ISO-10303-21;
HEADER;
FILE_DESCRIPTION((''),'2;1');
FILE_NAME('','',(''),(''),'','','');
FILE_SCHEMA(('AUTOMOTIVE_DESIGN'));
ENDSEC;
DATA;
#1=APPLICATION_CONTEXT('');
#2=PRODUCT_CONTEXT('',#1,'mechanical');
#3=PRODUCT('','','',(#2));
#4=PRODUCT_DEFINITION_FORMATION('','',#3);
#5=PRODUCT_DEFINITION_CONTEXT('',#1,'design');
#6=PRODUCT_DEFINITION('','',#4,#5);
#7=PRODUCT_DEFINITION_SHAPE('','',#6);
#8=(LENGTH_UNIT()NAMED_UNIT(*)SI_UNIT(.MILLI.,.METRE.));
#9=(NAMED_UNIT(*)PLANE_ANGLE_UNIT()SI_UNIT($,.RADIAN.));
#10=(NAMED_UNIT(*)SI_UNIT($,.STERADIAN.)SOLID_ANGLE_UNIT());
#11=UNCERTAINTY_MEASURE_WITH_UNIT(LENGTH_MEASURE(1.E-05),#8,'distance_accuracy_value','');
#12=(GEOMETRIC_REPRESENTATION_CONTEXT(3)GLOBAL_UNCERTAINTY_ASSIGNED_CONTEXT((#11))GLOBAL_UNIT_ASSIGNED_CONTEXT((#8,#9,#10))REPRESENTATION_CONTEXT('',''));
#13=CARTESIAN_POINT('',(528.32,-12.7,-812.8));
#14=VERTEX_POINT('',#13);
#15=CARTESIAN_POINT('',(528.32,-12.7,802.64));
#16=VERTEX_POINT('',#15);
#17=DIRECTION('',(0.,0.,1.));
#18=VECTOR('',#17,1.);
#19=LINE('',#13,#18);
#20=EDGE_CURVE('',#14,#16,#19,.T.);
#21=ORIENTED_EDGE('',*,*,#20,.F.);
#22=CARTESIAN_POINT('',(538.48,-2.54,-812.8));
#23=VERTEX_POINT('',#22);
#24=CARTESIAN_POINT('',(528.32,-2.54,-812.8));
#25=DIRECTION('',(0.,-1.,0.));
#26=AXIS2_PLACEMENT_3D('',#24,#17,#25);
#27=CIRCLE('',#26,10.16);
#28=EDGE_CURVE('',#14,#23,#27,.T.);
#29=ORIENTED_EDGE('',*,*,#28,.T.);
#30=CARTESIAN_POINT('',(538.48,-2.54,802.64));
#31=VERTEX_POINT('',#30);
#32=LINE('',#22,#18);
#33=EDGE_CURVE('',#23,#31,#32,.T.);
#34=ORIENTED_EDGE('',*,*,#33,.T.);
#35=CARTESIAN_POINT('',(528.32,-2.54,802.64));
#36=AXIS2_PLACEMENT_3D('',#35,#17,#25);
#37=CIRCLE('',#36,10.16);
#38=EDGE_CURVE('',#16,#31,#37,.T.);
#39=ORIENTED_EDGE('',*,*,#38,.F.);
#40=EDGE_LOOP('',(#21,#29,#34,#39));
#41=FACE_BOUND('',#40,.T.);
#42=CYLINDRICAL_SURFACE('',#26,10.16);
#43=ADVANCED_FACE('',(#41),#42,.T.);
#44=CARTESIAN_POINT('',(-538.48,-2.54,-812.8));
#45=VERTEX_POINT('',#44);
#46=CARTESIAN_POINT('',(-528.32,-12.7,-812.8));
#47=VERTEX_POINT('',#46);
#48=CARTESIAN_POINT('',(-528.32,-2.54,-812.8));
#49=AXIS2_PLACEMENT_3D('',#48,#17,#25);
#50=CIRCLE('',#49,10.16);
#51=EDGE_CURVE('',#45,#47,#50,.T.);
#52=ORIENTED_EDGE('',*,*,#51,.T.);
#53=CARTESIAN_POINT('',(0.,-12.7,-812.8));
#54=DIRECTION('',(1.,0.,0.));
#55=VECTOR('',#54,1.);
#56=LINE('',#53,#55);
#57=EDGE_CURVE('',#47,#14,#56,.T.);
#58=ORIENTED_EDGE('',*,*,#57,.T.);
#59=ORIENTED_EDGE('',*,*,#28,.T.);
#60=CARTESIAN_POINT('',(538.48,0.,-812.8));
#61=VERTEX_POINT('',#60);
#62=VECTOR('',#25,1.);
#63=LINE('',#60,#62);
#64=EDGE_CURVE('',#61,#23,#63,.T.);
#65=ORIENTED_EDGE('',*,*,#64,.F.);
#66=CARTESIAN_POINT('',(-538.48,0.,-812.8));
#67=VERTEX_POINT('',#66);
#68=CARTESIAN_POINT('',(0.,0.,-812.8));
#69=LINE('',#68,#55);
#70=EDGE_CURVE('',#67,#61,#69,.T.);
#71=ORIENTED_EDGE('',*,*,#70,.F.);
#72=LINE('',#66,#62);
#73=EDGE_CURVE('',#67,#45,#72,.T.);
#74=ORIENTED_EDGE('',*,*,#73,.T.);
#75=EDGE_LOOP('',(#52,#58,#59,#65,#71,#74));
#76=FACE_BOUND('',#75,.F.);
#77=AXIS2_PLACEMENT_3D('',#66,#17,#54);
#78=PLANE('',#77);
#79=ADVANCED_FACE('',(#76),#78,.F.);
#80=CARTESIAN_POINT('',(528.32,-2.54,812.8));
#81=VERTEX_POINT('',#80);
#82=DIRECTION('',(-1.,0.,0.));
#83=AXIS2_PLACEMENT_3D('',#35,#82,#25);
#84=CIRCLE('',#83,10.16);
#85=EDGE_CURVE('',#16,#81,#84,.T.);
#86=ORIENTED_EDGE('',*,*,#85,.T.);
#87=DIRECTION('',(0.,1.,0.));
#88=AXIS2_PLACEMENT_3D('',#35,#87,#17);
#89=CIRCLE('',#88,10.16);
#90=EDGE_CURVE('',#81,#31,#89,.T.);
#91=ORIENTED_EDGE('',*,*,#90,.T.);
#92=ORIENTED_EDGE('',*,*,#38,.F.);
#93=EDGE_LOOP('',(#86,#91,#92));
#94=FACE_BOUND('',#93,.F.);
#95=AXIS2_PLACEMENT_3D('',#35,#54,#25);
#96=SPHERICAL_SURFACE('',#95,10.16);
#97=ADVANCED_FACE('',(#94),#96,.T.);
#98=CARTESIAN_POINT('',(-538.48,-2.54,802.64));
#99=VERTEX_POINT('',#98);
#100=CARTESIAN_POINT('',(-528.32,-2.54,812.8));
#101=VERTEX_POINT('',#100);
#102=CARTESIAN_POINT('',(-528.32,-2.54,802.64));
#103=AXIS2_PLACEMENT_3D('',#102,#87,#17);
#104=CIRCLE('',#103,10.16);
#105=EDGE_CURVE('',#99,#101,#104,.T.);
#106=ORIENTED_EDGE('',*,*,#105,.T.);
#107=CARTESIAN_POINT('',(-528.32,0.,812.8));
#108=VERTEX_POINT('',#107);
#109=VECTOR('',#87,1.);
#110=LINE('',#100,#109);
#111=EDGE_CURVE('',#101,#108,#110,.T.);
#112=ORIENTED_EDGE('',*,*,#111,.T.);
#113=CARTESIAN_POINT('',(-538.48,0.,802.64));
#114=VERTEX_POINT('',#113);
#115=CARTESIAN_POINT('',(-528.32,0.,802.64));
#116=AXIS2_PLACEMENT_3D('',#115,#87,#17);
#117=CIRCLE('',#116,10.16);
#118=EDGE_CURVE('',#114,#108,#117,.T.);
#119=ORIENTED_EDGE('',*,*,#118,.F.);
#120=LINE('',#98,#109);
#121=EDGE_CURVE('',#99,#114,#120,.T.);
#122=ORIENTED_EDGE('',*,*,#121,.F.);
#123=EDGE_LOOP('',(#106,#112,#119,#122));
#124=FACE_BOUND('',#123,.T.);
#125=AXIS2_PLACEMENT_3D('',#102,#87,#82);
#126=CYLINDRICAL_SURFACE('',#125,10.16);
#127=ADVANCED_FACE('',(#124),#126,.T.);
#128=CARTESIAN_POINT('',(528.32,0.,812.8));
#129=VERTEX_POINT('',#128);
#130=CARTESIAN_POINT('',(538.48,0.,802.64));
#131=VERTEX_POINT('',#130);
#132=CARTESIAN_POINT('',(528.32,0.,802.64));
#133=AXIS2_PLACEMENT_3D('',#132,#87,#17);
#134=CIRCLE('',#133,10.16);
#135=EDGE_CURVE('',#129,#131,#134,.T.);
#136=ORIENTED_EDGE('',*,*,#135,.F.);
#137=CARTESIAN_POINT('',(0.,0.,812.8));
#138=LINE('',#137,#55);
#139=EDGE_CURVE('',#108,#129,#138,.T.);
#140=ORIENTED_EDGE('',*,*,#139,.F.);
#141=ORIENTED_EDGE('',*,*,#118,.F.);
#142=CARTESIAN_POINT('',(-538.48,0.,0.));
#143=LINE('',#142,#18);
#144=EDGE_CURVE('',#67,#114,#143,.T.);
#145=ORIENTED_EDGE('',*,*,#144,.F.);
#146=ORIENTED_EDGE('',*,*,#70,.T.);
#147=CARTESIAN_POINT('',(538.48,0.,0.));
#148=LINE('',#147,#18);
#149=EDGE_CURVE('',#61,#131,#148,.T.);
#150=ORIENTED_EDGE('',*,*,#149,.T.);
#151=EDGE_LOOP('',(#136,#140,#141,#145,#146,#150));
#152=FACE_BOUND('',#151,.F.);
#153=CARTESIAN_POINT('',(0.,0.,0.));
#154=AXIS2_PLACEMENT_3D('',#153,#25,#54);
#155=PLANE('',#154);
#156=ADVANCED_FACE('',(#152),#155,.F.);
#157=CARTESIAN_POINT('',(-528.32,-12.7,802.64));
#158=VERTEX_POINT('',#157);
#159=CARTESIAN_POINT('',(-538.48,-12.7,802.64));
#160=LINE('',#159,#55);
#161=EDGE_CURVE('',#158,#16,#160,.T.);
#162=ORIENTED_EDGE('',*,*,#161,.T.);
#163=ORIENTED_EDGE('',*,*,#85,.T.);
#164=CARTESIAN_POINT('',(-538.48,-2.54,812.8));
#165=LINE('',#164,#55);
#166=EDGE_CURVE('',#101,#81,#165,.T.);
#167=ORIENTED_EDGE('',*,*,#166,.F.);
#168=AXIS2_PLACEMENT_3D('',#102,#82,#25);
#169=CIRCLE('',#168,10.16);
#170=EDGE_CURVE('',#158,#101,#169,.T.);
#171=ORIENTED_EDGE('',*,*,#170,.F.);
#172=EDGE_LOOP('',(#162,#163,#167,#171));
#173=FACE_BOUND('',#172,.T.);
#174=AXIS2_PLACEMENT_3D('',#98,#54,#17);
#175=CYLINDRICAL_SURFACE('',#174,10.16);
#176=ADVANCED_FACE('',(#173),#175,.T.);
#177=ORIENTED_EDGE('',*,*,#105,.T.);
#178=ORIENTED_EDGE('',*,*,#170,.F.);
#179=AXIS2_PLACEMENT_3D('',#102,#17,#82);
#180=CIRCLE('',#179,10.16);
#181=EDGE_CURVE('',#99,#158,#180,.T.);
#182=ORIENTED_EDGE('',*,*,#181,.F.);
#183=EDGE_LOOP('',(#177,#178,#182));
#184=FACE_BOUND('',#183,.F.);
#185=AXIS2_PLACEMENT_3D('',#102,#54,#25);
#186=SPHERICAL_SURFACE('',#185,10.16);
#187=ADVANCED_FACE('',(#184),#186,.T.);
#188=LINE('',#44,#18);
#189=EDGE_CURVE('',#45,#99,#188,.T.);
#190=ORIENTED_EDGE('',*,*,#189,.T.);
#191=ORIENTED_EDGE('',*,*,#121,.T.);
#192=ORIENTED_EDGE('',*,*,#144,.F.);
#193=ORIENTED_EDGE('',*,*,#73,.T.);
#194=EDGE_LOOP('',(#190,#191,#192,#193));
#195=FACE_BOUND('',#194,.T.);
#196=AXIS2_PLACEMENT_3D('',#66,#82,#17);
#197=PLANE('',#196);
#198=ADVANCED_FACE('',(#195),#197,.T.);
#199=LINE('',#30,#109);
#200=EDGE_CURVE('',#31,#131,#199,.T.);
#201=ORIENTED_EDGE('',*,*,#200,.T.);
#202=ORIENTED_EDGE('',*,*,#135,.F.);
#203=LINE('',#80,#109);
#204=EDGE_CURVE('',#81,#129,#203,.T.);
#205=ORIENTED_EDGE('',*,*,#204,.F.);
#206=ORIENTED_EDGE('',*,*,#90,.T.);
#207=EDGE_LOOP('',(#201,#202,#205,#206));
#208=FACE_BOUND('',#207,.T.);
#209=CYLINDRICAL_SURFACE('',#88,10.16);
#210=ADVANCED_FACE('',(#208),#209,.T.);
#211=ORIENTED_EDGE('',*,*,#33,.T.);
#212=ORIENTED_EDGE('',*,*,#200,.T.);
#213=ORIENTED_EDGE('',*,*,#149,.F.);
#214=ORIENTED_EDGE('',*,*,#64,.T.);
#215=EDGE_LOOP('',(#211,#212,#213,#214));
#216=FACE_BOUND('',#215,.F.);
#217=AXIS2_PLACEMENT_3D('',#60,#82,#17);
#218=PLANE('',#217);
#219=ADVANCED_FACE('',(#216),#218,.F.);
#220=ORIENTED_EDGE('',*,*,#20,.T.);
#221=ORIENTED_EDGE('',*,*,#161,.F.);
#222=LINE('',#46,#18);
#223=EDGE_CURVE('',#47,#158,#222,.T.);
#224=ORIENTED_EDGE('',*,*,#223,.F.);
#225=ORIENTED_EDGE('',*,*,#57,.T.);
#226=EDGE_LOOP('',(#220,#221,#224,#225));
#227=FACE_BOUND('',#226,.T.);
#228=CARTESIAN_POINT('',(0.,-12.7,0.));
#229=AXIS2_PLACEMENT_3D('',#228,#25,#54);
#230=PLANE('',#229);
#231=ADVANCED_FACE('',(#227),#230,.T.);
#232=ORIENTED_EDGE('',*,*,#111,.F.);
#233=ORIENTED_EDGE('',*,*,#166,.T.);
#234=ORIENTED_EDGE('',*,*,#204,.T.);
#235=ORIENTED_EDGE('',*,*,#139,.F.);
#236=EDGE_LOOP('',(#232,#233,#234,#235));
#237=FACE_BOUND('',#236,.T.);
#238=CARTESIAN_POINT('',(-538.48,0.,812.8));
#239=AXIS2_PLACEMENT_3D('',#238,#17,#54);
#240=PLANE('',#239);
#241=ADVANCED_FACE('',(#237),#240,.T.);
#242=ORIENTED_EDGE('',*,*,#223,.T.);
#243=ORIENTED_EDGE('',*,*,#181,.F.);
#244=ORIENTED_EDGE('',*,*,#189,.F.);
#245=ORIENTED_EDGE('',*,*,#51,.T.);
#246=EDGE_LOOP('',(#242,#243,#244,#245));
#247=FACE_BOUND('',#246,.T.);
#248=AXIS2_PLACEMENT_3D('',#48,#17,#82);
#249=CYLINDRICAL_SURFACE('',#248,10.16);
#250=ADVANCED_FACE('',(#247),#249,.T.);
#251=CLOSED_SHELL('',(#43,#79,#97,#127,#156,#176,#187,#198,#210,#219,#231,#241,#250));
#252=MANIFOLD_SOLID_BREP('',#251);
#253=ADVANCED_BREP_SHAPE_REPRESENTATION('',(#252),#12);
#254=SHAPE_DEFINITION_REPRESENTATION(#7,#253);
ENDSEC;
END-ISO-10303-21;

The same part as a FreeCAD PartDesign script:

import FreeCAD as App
import Part
import Sketcher
from FreeCAD import Vector
Q = App.Units.Quantity


def edges_at(feature, points):
    """Names of the edges that pass closest to the given points."""
    edges = feature.Shape.Edges
    near = lambda p: min(range(len(edges)), key=lambda i: edges[i].distToShape(Part.Vertex(*p))[0])
    return sorted({f"Edge{near(p) + 1}" for p in points})


def add_polygon(sketch, points):
    """Adds a closed chain of lines whose ends are joined by coincident constraints."""
    first, n = sketch.GeometryCount, len(points)
    for a, b in zip(points, points[1:] + points[:1]):
        sketch.addGeometry(Part.LineSegment(App.Vector(*a, 0), App.Vector(*b, 0)), False)
    for i in range(n):
        sketch.addConstraint(Sketcher.Constraint("Coincident", first + i, 2, first + (i + 1) % n, 1))

doc = App.newDocument("Part")
body = doc.addObject("PartDesign::Body", "Body")

# Sketch on XZ plane
sketch1 = doc.addObject("Sketcher::SketchObject", "Sketch")
body.addObject(sketch1)
sketch1.AttachmentSupport = (doc.XZ_Plane, [""])
sketch1.MapMode = "FlatFace"
add_polygon(sketch1, [(-538.48, 812.8), (-538.48, -812.8), (538.48, -812.8), (538.48, 812.8)])  # lines 0-3
sketch1.addConstraint([
    Sketcher.Constraint("Vertical", 0),
    Sketcher.Constraint("Horizontal", 1),
    Sketcher.Constraint("Vertical", 2),
    Sketcher.Constraint("Horizontal", 3),
    Sketcher.Constraint("Symmetric", 0, 2, 2, 2, -1, 1),
    Sketcher.Constraint("DistanceY", 0, 2, 0, 1, Q("64 in")),
    Sketcher.Constraint("DistanceX", 1, 1, 1, 2, Q("42.4 in")),
])
pad1 = doc.addObject("PartDesign::Pad", "Pad")
body.addObject(pad1)
pad1.Profile = sketch1
pad1.Length = Q("0.5 in")
doc.recompute()

fillet = doc.addObject("PartDesign::Fillet", "Fillet")
body.addObject(fillet)
fillet.Base = (pad1, edges_at(pad1, [(0, -12.7, 812.8)]))
fillet.Radius = Q("0.4 in")
doc.recompute()

fillet2 = doc.addObject("PartDesign::Fillet", "Fillet001")
body.addObject(fillet2)
fillet2.Base = (fillet, edges_at(fillet, [(538.48, -12.7, -5.08), (-538.48, -12.7, -5.08)]))
fillet2.Radius = Q("0.4 in")

doc.recompute()
